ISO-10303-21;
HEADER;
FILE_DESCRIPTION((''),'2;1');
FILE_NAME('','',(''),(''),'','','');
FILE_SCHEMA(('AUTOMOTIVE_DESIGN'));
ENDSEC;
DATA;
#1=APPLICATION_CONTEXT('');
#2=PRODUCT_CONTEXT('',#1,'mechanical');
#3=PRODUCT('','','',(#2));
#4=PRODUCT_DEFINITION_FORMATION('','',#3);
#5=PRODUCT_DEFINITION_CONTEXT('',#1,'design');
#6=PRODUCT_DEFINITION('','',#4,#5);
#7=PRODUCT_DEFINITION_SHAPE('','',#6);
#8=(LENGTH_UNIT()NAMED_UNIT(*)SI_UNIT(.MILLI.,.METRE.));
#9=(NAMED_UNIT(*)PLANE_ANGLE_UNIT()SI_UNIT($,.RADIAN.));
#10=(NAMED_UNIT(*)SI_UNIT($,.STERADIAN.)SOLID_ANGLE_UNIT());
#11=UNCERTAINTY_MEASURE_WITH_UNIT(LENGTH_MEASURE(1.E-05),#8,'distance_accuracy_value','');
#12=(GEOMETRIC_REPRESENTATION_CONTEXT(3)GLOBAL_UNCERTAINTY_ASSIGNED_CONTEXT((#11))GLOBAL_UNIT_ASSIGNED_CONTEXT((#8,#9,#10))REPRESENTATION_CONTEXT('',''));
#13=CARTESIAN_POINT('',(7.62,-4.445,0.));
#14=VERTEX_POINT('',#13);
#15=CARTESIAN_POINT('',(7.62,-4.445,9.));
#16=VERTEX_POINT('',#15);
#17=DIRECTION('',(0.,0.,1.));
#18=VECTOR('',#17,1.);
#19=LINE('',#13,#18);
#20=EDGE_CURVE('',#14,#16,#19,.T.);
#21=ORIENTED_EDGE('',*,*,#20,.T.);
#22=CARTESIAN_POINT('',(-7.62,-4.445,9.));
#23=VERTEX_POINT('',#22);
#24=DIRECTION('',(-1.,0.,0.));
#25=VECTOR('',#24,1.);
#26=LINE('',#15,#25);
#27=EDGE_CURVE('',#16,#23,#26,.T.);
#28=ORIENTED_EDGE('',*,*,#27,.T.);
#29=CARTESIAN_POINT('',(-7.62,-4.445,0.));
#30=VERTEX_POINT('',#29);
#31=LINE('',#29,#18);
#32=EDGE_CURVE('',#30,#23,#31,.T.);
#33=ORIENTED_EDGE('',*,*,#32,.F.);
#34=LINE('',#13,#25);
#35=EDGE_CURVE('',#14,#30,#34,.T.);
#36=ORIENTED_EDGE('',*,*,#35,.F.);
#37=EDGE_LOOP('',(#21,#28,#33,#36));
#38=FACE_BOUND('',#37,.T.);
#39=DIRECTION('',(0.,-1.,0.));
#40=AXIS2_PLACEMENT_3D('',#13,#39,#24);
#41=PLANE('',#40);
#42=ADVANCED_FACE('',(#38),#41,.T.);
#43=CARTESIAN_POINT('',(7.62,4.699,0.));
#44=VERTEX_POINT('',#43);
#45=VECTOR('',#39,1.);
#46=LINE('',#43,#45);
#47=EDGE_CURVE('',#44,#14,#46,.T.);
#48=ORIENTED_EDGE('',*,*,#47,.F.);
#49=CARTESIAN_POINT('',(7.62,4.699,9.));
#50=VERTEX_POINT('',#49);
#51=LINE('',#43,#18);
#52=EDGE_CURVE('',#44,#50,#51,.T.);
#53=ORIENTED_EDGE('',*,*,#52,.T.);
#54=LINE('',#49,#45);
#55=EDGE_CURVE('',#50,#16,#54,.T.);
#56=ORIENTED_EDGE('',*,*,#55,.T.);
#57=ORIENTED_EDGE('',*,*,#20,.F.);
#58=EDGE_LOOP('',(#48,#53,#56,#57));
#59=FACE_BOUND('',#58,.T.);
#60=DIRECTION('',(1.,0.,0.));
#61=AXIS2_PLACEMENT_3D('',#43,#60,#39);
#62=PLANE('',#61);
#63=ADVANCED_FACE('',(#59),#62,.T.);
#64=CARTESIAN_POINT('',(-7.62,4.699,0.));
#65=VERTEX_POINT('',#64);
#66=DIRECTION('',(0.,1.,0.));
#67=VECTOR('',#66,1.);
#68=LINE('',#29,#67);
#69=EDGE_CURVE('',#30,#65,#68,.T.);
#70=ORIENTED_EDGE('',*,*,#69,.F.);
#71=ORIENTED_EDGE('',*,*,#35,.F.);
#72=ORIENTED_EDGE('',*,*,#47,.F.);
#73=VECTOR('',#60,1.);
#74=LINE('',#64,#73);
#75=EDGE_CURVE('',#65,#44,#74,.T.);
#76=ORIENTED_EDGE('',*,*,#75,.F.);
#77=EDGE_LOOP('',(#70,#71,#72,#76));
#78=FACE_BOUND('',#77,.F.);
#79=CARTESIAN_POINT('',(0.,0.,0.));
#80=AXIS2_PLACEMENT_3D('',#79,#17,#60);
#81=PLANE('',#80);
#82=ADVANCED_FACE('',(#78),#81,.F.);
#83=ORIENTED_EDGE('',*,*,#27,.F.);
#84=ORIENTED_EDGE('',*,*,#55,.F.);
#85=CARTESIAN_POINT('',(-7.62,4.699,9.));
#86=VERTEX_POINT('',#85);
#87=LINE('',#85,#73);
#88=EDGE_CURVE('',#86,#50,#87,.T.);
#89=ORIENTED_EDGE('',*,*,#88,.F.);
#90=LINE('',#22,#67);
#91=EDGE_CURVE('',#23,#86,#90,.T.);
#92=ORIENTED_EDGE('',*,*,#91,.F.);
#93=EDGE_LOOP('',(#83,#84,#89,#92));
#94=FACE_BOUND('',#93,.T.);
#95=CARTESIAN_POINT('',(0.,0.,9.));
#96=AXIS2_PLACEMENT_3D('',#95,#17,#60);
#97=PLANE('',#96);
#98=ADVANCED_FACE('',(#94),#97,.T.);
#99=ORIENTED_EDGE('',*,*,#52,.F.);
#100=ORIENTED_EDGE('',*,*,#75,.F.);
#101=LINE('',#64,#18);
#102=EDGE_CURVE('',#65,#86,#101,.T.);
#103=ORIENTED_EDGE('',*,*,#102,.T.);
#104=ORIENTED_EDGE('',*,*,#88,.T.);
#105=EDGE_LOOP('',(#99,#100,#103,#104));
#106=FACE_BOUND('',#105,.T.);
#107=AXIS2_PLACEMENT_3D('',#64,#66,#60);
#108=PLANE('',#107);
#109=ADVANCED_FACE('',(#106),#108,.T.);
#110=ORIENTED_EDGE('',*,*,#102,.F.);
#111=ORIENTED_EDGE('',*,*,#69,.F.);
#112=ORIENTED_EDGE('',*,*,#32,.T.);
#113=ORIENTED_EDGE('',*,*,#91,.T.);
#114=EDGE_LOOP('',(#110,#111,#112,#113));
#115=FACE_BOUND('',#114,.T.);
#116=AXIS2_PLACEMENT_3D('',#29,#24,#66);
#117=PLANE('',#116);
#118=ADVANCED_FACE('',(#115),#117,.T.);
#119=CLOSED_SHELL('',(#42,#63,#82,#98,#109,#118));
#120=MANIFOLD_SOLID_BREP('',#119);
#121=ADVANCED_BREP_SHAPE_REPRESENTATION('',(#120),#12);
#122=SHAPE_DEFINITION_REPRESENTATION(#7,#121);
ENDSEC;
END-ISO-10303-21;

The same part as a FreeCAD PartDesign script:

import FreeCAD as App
import Part
import Sketcher
from FreeCAD import Vector
Q = App.Units.Quantity


def add_polygon(sketch, points):
    """Adds a closed chain of lines whose ends are joined by coincident constraints."""
    first, n = sketch.GeometryCount, len(points)
    for a, b in zip(points, points[1:] + points[:1]):
        sketch.addGeometry(Part.LineSegment(App.Vector(*a, 0), App.Vector(*b, 0)), False)
    for i in range(n):
        sketch.addConstraint(Sketcher.Constraint("Coincident", first + i, 2, first + (i + 1) % n, 1))

doc = App.newDocument("Part")
body = doc.addObject("PartDesign::Body", "Body")

# Sketch on XY plane
sketch1 = doc.addObject("Sketcher::SketchObject", "Sketch")
body.addObject(sketch1)
sketch1.AttachmentSupport = (doc.XY_Plane, [""])
sketch1.MapMode = "FlatFace"
add_polygon(sketch1, [(7.62, 4.699), (-7.62, 4.699), (-7.62, -4.445), (7.62, -4.445)])  # lines 0-3
sketch1.addConstraint([
    Sketcher.Constraint("Horizontal", 0),
    Sketcher.Constraint("Vertical", 1),
    Sketcher.Constraint("Horizontal", 2),
    Sketcher.Constraint("Vertical", 3),
    Sketcher.Constraint("DistanceX", 0, 2, 0, 1, Q("0.6 in")),
    Sketcher.Constraint("DistanceY", 1, 2, 1, 1, Q("0.36 in")),
    Sketcher.Constraint("DistanceX", 0, 2, -1, 1, Q("0.3 in")),
    Sketcher.Constraint("DistanceY", -1, 1, 0, 2, Q("0.185 in")),
])
pad1 = doc.addObject("PartDesign::Pad", "Pad")
body.addObject(pad1)
pad1.Profile = sketch1
pad1.Length = 9

doc.recompute()
